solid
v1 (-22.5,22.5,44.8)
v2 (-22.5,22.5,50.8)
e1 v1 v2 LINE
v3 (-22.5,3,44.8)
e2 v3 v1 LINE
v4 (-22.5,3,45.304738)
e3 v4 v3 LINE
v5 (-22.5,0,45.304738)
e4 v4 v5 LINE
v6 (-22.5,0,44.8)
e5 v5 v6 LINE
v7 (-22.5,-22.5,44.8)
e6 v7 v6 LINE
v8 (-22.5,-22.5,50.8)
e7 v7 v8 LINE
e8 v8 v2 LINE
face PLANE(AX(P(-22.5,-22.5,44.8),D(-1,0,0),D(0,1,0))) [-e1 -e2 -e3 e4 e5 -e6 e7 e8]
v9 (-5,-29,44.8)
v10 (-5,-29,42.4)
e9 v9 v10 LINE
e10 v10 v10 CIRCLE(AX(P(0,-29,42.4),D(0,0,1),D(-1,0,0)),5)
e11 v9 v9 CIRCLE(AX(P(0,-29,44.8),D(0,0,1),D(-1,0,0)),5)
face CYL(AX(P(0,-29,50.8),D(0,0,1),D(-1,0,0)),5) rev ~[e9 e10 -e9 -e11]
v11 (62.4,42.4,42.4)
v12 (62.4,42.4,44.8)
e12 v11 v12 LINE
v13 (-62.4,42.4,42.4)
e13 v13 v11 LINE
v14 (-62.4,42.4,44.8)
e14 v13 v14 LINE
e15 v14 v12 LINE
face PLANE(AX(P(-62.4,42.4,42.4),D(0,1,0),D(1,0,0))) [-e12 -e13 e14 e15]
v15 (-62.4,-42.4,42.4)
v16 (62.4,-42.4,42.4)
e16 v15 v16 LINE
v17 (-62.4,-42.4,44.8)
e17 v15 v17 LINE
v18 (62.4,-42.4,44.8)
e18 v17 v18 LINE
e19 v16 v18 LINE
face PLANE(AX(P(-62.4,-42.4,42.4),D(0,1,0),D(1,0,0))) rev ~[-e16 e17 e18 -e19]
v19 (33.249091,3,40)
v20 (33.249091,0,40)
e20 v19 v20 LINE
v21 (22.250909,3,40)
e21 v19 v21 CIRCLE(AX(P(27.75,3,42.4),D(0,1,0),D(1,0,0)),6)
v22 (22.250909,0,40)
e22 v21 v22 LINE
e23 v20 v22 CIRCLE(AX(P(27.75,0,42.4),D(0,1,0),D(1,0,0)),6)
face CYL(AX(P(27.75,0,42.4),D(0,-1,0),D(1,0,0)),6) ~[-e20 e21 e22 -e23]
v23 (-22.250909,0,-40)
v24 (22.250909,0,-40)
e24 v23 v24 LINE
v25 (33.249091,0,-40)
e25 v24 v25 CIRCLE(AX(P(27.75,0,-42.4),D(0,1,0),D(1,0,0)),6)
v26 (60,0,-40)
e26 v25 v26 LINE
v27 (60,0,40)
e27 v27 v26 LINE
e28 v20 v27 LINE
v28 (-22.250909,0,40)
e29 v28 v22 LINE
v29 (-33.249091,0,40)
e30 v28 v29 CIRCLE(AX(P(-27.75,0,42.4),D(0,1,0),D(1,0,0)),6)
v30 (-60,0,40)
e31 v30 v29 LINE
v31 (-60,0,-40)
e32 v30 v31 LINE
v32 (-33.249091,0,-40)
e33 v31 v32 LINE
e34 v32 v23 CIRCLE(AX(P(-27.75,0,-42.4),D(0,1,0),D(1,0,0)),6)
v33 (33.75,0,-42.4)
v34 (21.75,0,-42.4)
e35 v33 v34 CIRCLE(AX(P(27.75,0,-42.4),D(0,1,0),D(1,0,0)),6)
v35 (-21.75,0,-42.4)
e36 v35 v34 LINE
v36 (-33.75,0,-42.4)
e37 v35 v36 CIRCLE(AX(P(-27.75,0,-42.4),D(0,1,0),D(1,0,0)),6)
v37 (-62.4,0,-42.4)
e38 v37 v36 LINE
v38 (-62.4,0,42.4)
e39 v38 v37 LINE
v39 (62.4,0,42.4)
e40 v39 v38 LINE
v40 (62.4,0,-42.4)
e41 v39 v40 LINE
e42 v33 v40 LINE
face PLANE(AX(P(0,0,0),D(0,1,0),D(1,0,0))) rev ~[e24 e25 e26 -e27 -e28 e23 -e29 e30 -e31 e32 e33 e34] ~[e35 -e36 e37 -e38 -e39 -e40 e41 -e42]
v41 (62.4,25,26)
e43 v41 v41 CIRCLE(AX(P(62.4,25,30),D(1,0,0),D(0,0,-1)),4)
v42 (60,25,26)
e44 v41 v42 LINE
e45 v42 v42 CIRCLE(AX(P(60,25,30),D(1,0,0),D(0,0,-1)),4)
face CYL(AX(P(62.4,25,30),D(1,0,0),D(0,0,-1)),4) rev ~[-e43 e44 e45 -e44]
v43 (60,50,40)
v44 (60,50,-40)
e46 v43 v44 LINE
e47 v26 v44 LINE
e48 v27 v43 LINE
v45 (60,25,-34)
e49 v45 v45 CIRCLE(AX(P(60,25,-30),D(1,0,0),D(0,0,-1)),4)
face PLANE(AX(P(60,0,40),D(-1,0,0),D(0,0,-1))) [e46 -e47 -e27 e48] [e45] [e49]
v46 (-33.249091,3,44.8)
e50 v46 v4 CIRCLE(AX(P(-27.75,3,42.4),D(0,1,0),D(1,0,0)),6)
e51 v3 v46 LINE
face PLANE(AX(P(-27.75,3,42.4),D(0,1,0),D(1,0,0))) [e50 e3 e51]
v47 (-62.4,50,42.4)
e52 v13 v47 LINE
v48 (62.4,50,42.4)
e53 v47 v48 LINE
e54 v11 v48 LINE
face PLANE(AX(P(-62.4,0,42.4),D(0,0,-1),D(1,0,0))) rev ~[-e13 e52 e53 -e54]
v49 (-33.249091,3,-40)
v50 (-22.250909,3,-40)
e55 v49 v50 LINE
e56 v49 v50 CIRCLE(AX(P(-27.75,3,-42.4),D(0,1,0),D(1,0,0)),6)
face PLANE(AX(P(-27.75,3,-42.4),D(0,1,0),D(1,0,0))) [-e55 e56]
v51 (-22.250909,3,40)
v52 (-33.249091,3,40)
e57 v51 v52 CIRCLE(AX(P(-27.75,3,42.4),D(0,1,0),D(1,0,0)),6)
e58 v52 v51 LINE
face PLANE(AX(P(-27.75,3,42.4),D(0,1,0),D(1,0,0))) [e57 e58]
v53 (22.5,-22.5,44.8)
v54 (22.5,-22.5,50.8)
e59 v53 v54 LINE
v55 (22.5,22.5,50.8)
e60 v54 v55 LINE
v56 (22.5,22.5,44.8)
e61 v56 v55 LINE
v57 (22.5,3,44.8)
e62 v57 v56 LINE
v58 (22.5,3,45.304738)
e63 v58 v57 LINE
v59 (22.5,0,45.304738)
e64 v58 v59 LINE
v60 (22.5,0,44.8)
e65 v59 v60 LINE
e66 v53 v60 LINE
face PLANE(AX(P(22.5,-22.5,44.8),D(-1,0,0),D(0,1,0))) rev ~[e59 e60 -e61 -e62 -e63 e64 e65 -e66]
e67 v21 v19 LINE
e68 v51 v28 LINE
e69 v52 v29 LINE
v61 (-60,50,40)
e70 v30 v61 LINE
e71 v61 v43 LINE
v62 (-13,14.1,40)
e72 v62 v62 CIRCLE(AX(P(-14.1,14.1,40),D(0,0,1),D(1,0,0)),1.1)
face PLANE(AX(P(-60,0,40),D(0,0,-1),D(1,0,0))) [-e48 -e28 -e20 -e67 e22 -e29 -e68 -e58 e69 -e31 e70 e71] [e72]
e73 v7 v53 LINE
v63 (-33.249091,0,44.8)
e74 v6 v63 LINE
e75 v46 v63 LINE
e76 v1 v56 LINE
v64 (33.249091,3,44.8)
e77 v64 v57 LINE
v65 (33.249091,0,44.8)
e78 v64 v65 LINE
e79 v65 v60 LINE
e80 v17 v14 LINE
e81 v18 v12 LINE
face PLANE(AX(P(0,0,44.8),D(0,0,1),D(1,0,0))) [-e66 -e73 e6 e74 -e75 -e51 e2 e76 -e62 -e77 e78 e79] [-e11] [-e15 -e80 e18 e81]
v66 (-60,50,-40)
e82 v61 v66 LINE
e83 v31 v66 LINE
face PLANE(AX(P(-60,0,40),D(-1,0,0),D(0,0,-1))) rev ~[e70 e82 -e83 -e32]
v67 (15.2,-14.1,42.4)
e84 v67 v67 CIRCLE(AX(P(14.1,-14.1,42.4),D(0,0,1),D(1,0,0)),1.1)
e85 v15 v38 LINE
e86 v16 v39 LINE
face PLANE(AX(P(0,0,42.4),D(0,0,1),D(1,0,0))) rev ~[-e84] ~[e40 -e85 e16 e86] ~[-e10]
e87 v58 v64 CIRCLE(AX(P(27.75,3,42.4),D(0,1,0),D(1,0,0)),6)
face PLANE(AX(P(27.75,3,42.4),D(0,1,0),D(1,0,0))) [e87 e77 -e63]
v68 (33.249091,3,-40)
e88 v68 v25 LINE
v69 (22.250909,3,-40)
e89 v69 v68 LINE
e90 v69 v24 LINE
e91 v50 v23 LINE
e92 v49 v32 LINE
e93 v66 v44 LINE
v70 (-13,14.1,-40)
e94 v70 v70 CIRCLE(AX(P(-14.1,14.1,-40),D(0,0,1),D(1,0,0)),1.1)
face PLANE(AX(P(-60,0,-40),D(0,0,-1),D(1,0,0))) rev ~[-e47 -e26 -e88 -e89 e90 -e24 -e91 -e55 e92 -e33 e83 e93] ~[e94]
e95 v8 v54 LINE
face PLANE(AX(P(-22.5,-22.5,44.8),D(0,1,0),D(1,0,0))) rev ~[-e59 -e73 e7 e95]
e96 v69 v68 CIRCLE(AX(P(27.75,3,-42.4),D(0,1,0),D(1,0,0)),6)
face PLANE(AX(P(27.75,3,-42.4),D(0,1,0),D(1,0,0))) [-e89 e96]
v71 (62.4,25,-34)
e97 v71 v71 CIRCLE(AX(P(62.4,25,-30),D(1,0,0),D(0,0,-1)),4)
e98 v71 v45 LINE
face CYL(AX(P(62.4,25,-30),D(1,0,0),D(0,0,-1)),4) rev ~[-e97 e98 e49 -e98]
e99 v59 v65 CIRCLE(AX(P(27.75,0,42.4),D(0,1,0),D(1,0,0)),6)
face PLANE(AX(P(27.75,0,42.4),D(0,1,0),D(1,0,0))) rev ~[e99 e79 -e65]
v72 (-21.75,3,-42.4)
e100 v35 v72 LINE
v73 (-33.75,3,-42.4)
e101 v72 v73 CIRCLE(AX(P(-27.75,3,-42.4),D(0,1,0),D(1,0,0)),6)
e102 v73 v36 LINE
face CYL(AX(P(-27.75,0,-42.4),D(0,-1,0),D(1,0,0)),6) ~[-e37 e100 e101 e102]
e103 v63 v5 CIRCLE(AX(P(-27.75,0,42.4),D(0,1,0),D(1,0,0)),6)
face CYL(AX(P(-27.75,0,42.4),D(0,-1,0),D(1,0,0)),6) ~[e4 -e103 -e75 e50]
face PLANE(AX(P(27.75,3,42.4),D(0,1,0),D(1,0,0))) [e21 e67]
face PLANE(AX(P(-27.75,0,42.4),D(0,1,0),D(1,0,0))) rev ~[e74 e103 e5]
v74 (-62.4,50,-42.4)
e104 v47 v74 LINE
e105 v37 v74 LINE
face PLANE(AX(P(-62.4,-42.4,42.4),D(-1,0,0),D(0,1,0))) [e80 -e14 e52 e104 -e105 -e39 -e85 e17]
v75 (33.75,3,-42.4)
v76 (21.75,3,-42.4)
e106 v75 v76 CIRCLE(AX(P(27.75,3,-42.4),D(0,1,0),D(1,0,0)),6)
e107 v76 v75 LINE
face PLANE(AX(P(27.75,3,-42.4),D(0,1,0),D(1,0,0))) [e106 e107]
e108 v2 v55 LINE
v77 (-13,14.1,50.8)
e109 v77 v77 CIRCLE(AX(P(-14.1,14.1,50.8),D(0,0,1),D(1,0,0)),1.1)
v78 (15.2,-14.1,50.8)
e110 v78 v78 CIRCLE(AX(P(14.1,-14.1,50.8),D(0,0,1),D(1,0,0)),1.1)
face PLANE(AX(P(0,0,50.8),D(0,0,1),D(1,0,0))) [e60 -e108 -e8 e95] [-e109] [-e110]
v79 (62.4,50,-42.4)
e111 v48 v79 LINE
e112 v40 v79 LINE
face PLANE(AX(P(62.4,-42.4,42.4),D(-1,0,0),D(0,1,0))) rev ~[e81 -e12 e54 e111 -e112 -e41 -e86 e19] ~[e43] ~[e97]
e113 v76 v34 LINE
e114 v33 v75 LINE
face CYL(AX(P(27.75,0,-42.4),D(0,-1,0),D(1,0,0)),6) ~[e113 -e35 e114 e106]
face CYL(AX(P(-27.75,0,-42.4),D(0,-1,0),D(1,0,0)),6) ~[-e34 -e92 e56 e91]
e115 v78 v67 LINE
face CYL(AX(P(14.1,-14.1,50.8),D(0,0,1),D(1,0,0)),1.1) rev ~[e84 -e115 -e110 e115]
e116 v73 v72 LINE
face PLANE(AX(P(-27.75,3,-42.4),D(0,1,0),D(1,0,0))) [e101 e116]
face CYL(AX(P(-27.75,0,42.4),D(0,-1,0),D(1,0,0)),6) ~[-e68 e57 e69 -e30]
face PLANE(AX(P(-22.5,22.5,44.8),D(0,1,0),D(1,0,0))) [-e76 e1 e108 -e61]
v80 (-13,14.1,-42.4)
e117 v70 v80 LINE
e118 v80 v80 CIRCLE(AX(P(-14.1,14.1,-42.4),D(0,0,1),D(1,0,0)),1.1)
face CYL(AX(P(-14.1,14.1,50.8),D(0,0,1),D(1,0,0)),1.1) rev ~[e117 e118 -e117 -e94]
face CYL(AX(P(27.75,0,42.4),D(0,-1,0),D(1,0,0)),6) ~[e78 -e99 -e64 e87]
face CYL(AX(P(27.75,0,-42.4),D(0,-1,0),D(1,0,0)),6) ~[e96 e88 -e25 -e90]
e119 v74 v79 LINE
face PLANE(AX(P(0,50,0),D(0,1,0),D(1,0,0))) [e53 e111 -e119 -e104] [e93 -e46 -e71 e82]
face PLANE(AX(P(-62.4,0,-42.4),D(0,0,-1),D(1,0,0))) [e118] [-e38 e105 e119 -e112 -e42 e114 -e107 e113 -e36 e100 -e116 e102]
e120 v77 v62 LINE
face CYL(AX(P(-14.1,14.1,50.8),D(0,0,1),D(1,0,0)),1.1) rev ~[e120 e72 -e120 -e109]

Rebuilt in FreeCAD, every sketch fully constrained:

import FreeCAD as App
import Part
import Sketcher

V = App.Vector

doc = App.newDocument("Part")
body = doc.addObject("PartDesign::Body", "Body")

sketch1 = body.newObject("Sketcher::SketchObject", "Sketch")
sketch1.AttachmentSupport = (doc.getObject("XZ_Plane"), [""])
sketch1.MapMode = "FlatFace"
sketch1.addGeometry(Part.LineSegment(V(-62.4, -42.4, 0), V(-62.4, 42.4, 0)), False)
sketch1.addGeometry(Part.LineSegment(V(-62.4, 42.4, 0), V(62.4, 42.4, 0)), False)
sketch1.addGeometry(Part.LineSegment(V(62.4, 42.4, 0), V(62.4, -42.4, 0)), False)
sketch1.addGeometry(Part.LineSegment(V(62.4, -42.4, 0), V(-62.4, -42.4, 0)), False)
sketch1.addGeometry(Part.LineSegment(V(60, 40, 0), V(-60, 40, 0)), False)
sketch1.addGeometry(Part.LineSegment(V(-60, 40, 0), V(-60, -40, 0)), False)
sketch1.addGeometry(Part.LineSegment(V(-60, -40, 0), V(60, -40, 0)), False)
sketch1.addGeometry(Part.LineSegment(V(60, -40, 0), V(60, 40, 0)), False)
sketch1.addConstraint(Sketcher.Constraint("Coincident", 0, 2, 1, 1))
sketch1.addConstraint(Sketcher.Constraint("Coincident", 1, 2, 2, 1))
sketch1.addConstraint(Sketcher.Constraint("Coincident", 2, 2, 3, 1))
sketch1.addConstraint(Sketcher.Constraint("Coincident", 3, 2, 0, 1))
sketch1.addConstraint(Sketcher.Constraint("Coincident", 4, 2, 5, 1))
sketch1.addConstraint(Sketcher.Constraint("Coincident", 5, 2, 6, 1))
sketch1.addConstraint(Sketcher.Constraint("Coincident", 6, 2, 7, 1))
sketch1.addConstraint(Sketcher.Constraint("Coincident", 7, 2, 4, 1))
sketch1.addConstraint(Sketcher.Constraint("Vertical", 0))
sketch1.addConstraint(Sketcher.Constraint("Horizontal", 1))
sketch1.addConstraint(Sketcher.Constraint("Vertical", 2))
sketch1.addConstraint(Sketcher.Constraint("Horizontal", 3))
sketch1.addConstraint(Sketcher.Constraint("Horizontal", 4))
sketch1.addConstraint(Sketcher.Constraint("Vertical", 5))
sketch1.addConstraint(Sketcher.Constraint("Horizontal", 6))
sketch1.addConstraint(Sketcher.Constraint("Vertical", 7))
sketch1.addConstraint(Sketcher.Constraint("Symmetric", 0, 2, 2, 2, -1, 1))
sketch1.addConstraint(Sketcher.Constraint("Symmetric", 4, 2, 6, 2, -1, 1))
sketch1.addConstraint(Sketcher.Constraint("DistanceX", 4, 2, 4, 1, 120.0))
sketch1.addConstraint(Sketcher.Constraint("DistanceY", 5, 2, 5, 1, 80.0))
sketch1.addConstraint(Sketcher.Constraint("DistanceX", 1, 1, 1, 2, 124.8))
sketch1.addConstraint(Sketcher.Constraint("DistanceY", 0, 1, 0, 2, 84.8))
pad1 = body.newObject("PartDesign::Pad", "Pad")
pad1.Profile = sketch1
pad1.Length = 50
pad1.Reversed = True

sketch2 = body.newObject("Sketcher::SketchObject", "Sketch001")
sketch2.AttachmentSupport = (doc.getObject("XY_Plane"), [""])
sketch2.MapMode = "FlatFace"
sketch2.AttachmentOffset = App.Placement(V(0, 0, 42.4), App.Rotation())
sketch2.addGeometry(Part.LineSegment(V(-62.4, 42.4, 0), V(-62.4, -42.4, 0)), False)
sketch2.addGeometry(Part.LineSegment(V(-62.4, -42.4, 0), V(62.4, -42.4, 0)), False)
sketch2.addGeometry(Part.LineSegment(V(62.4, -42.4, 0), V(62.4, 42.4, 0)), False)
sketch2.addGeometry(Part.LineSegment(V(62.4, 42.4, 0), V(-62.4, 42.4, 0)), False)
sketch2.addConstraint(Sketcher.Constraint("Coincident", 0, 2, 1, 1))
sketch2.addConstraint(Sketcher.Constraint("Coincident", 1, 2, 2, 1))
sketch2.addConstraint(Sketcher.Constraint("Coincident", 2, 2, 3, 1))
sketch2.addConstraint(Sketcher.Constraint("Coincident", 3, 2, 0, 1))
sketch2.addConstraint(Sketcher.Constraint("Vertical", 0))
sketch2.addConstraint(Sketcher.Constraint("Horizontal", 1))
sketch2.addConstraint(Sketcher.Constraint("Vertical", 2))
sketch2.addConstraint(Sketcher.Constraint("Horizontal", 3))
sketch2.addConstraint(Sketcher.Constraint("Symmetric", 0, 2, 2, 2, -1, 1))
sketch2.addConstraint(Sketcher.Constraint("DistanceX", 1, 1, 1, 2, 124.8))
sketch2.addConstraint(Sketcher.Constraint("DistanceY", 0, 2, 0, 1, 84.8))
pad2 = body.newObject("PartDesign::Pad", "Pad001")
pad2.Profile = sketch2
pad2.Length = 2.4

sketch3 = body.newObject("Sketcher::SketchObject", "Sketch002")
sketch3.AttachmentSupport = (doc.getObject("XY_Plane"), [""])
sketch3.MapMode = "FlatFace"
sketch3.AttachmentOffset = App.Placement(V(0, 0, 44.8), App.Rotation())
sketch3.addGeometry(Part.LineSegment(V(-22.5, 22.5, 0), V(-22.5, -22.5, 0)), False)
sketch3.addGeometry(Part.LineSegment(V(-22.5, -22.5, 0), V(22.5, -22.5, 0)), False)
sketch3.addGeometry(Part.LineSegment(V(22.5, -22.5, 0), V(22.5, 22.5, 0)), False)
sketch3.addGeometry(Part.LineSegment(V(22.5, 22.5, 0), V(-22.5, 22.5, 0)), False)
sketch3.addConstraint(Sketcher.Constraint("Coincident", 0, 2, 1, 1))
sketch3.addConstraint(Sketcher.Constraint("Coincident", 1, 2, 2, 1))
sketch3.addConstraint(Sketcher.Constraint("Coincident", 2, 2, 3, 1))
sketch3.addConstraint(Sketcher.Constraint("Coincident", 3, 2, 0, 1))
sketch3.addConstraint(Sketcher.Constraint("Vertical", 0))
sketch3.addConstraint(Sketcher.Constraint("Horizontal", 1))
sketch3.addConstraint(Sketcher.Constraint("Vertical", 2))
sketch3.addConstraint(Sketcher.Constraint("Horizontal", 3))
sketch3.addConstraint(Sketcher.Constraint("Symmetric", 0, 2, 2, 2, -1, 1))
sketch3.addConstraint(Sketcher.Constraint("Equal", 3, 0))
sketch3.addConstraint(Sketcher.Constraint("DistanceX", 1, 1, 1, 2, 45.0))
pad3 = body.newObject("PartDesign::Pad", "Pad002")
pad3.Profile = sketch3
pad3.Length = 6

sketch4 = body.newObject("Sketcher::SketchObject", "Sketch003")
sketch4.AttachmentSupport = (doc.getObject("XY_Plane"), [""])
sketch4.MapMode = "FlatFace"
sketch4.AttachmentOffset = App.Placement(V(0, 0, 50.8), App.Rotation())
sketch4.addGeometry(Part.Circle(V(-14.1, 14.1, 0), V(0, 0, 1), 1.1), False)
sketch4.addGeometry(Part.Circle(V(14.1, -14.1, 0), V(0, 0, 1), 1.1), False)
sketch4.addGeometry(Part.Circle(V(0, -29, 0), V(0, 0, 1), 5), False)
sketch4.addConstraint(Sketcher.Constraint("Equal", 0, 1))
sketch4.addConstraint(Sketcher.Constraint("Symmetric", 0, 3, 1, 3, -1, 1))
sketch4.addConstraint(Sketcher.Constraint("PointOnObject", 2, 3, -2))
sketch4.addConstraint(Sketcher.Constraint("Diameter", 2, 10.0))
sketch4.addConstraint(Sketcher.Constraint("Diameter", 0, 2.2))
sketch4.addConstraint(Sketcher.Constraint("DistanceY", 2, 3, -1, 1, 29.0))
sketch4.addConstraint(Sketcher.Constraint("DistanceX", 0, 3, -1, 1, 14.1))
sketch4.addConstraint(Sketcher.Constraint("DistanceY", -1, 1, 0, 3, 14.1))
pocket1 = body.newObject("PartDesign::Pocket", "Pocket")
pocket1.Profile = sketch4
pocket1.Type = "ThroughAll"

sketch5 = body.newObject("Sketcher::SketchObject", "Sketch004")
sketch5.AttachmentSupport = (doc.getObject("YZ_Plane"), [""])
sketch5.MapMode = "FlatFace"
sketch5.AttachmentOffset = App.Placement(V(0, 0, 62.4), App.Rotation())
sketch5.addGeometry(Part.Circle(V(25, 30, 0), V(0, 0, 1), 4), False)
sketch5.addGeometry(Part.Circle(V(25, -30, 0), V(0, 0, 1), 4), False)
sketch5.addConstraint(Sketcher.Constraint("Equal", 0, 1))
sketch5.addConstraint(Sketcher.Constraint("Symmetric", 0, 3, 1, 3, -1))
sketch5.addConstraint(Sketcher.Constraint("Diameter", 0, 8.0))
sketch5.addConstraint(Sketcher.Constraint("DistanceX", -1, 1, 0, 3, 25.0))
sketch5.addConstraint(Sketcher.Constraint("DistanceY", -1, 1, 0, 3, 30.0))
pocket2 = body.newObject("PartDesign::Pocket", "Pocket001")
pocket2.Profile = sketch5
pocket2.Length = 3

sketch6 = body.newObject("Sketcher::SketchObject", "Sketch005")
sketch6.AttachmentSupport = (doc.getObject("XZ_Plane"), [""])
sketch6.MapMode = "FlatFace"
sketch6.addGeometry(Part.Circle(V(-27.75, 42.4, 0), V(0, 0, 1), 6), False)
sketch6.addGeometry(Part.Circle(V(27.75, 42.4, 0), V(0, 0, 1), 6), False)
sketch6.addGeometry(Part.Circle(V(-27.75, -42.4, 0), V(0, 0, 1), 6), False)
sketch6.addGeometry(Part.Circle(V(27.75, -42.4, 0), V(0, 0, 1), 6), False)
sketch6.addConstraint(Sketcher.Constraint("Equal", 0, 1))
sketch6.addConstraint(Sketcher.Constraint("Equal", 1, 2))
sketch6.addConstraint(Sketcher.Constraint("Equal", 2, 3))
sketch6.addConstraint(Sketcher.Constraint("Symmetric", 1, 3, 2, 3, -1, 1))
sketch6.addConstraint(Sketcher.Constraint("Symmetric", 0, 3, 3, 3, -1, 1))
sketch6.addConstraint(Sketcher.Constraint("Symmetric", 0, 3, 1, 3, -2))
sketch6.addConstraint(Sketcher.Constraint("Diameter", 0, 12.0))
sketch6.addConstraint(Sketcher.Constraint("DistanceY", -1, 1, 0, 3, 42.4))
sketch6.addConstraint(Sketcher.Constraint("DistanceX", 0, 3, 1, 3, 55.5))
pad4 = body.newObject("PartDesign::Pad", "Pad003")
pad4.Profile = sketch6
pad4.Length = 3
pad4.Reversed = True

doc.recompute()
